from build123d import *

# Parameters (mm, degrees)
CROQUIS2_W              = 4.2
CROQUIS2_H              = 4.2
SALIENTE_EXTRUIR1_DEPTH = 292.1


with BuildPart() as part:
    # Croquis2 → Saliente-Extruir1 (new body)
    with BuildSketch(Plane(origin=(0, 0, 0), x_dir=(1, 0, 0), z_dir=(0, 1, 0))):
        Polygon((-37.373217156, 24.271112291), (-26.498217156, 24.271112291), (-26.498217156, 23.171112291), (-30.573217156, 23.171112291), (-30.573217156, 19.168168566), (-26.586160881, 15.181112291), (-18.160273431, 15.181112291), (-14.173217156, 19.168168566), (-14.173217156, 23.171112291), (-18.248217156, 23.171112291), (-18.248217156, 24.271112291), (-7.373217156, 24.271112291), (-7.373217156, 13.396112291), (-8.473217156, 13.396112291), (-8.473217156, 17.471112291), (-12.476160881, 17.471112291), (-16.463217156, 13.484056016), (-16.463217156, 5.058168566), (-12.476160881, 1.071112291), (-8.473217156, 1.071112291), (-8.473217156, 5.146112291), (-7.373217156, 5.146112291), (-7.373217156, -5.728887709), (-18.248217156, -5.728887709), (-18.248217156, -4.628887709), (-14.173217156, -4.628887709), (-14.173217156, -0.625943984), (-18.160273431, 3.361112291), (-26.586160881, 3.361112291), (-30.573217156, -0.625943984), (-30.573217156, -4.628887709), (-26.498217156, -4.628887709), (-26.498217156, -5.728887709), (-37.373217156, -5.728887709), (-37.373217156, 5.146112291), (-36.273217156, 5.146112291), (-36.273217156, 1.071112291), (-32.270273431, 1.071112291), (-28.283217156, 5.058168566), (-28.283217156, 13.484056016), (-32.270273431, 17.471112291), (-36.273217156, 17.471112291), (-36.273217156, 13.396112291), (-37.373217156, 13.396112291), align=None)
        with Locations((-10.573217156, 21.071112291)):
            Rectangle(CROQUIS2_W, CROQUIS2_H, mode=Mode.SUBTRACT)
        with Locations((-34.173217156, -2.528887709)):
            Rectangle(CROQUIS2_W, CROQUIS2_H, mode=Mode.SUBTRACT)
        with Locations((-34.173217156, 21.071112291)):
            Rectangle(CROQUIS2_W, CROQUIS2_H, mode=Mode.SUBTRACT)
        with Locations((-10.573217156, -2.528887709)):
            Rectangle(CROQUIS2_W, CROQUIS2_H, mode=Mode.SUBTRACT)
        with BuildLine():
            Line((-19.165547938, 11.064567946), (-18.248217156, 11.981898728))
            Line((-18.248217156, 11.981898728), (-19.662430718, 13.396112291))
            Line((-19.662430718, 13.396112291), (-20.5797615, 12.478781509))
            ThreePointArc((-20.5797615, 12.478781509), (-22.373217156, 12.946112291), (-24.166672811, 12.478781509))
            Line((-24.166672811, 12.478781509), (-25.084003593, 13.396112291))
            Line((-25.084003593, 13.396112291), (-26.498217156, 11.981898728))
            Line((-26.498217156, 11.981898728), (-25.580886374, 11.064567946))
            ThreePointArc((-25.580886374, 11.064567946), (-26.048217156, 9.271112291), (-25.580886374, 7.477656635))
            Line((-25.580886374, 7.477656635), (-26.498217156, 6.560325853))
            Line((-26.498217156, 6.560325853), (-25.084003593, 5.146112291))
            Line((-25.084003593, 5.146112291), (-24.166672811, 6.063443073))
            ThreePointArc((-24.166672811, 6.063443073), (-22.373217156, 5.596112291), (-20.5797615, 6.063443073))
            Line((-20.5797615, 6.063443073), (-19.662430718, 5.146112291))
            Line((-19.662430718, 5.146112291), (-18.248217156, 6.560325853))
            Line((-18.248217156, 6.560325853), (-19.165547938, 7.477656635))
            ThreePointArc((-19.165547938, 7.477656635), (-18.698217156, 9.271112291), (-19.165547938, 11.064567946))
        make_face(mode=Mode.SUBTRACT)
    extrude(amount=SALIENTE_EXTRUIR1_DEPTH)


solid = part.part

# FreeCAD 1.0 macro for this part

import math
import FreeCAD as App
import Part
import Sketcher

V = App.Vector


def add_polygon(sketch, points):
    """Adds a closed chain of lines whose ends are joined by coincident constraints."""
    first, n = sketch.GeometryCount, len(points)
    for a, b in zip(points, points[1:] + points[:1]):
        sketch.addGeometry(Part.LineSegment(App.Vector(*a, 0), App.Vector(*b, 0)), False)
    for i in range(n):
        sketch.addConstraint(Sketcher.Constraint("Coincident", first + i, 2, first + (i + 1) % n, 1))

doc = App.newDocument("Part")
body = doc.addObject("PartDesign::Body", "Body")

sketch1 = body.newObject("Sketcher::SketchObject", "Sketch")
sketch1.AttachmentSupport = (doc.getObject("XZ_Plane"), [""])
sketch1.MapMode = "FlatFace"
add_polygon(sketch1, [(-26.498217, -24.271112), (-37.373217, -24.271112), (-37.373217, -13.396112), (-36.273217, -13.396112), (-36.273217, -17.471112), (-32.270273, -17.471112), (-28.283217, -13.484056), (-28.283217, -5.058169), (-32.270273, -1.071112), (-36.273217, -1.071112), (-36.273217, -5.146112), (-37.373217, -5.146112), (-37.373217, 5.728888), (-26.498217, 5.728888), (-26.498217, 4.628888), (-30.573217, 4.628888), (-30.573217, 0.625944), (-26.586161, -3.361112), (-18.160273, -3.361112), (-14.173217, 0.625944), (-14.173217, 4.628888), (-18.248217, 4.628888), (-18.248217, 5.728888), (-7.373217, 5.728888), (-7.373217, -5.146112), (-8.473217, -5.146112), (-8.473217, -1.071112), (-12.476161, -1.071112), (-16.463217, -5.058169), (-16.463217, -13.484056), (-12.476161, -17.471112), (-8.473217, -17.471112), (-8.473217, -13.396112), (-7.373217, -13.396112), (-7.373217, -24.271112), (-18.248217, -24.271112), (-18.248217, -23.171112), (-14.173217, -23.171112), (-14.173217, -19.168169), (-18.160273, -15.181112), (-26.586161, -15.181112), (-30.573217, -19.168169), (-30.573217, -23.171112), (-26.498217, -23.171112)])
add_polygon(sketch1, [(-12.673217, 4.628888), (-12.673217, 0.428888), (-8.473217, 0.428888), (-8.473217, 4.628888)])
add_polygon(sketch1, [(-36.273217, 4.628888), (-36.273217, 0.428888), (-32.073217, 0.428888), (-32.073217, 4.628888)])
sketch1.addGeometry(Part.ArcOfCircle(Part.Circle(V(-22.373217, -9.271112, 0), V(0, 0, 1), 3.675), math.radians(-29.210206), math.radians(29.210206)), False)
sketch1.addGeometry(Part.LineSegment(V(-19.165548, -7.477657, 0), V(-18.248217, -6.560326, 0)), False)
sketch1.addGeometry(Part.LineSegment(V(-18.248217, -6.560326, 0), V(-19.662431, -5.146112, 0)), False)
sketch1.addGeometry(Part.LineSegment(V(-19.662431, -5.146112, 0), V(-20.579762, -6.063443, 0)), False)
sketch1.addGeometry(Part.ArcOfCircle(Part.Circle(V(-22.373217, -9.271112, 0), V(0, 0, 1), 3.675), math.radians(60.789794), math.radians(119.210206)), False)
sketch1.addGeometry(Part.LineSegment(V(-24.166673, -6.063443, 0), V(-25.084004, -5.146112, 0)), False)
sketch1.addGeometry(Part.LineSegment(V(-25.084004, -5.146112, 0), V(-26.498217, -6.560326, 0)), False)
sketch1.addGeometry(Part.LineSegment(V(-26.498217, -6.560326, 0), V(-25.580886, -7.477657, 0)), False)
sketch1.addGeometry(Part.ArcOfCircle(Part.Circle(V(-22.373217, -9.271112, 0), V(0, 0, 1), 3.675), math.radians(150.789794), math.radians(209.210206)), False)
sketch1.addGeometry(Part.LineSegment(V(-25.580886, -11.064568, 0), V(-26.498217, -11.981899, 0)), False)
sketch1.addGeometry(Part.LineSegment(V(-26.498217, -11.981899, 0), V(-25.084004, -13.396112, 0)), False)
sketch1.addGeometry(Part.LineSegment(V(-25.084004, -13.396112, 0), V(-24.166673, -12.478782, 0)), False)
sketch1.addGeometry(Part.ArcOfCircle(Part.Circle(V(-22.373217, -9.271112, 0), V(0, 0, 1), 3.675), math.radians(-119.210206), math.radians(-60.789794)), False)
sketch1.addGeometry(Part.LineSegment(V(-20.579762, -12.478782, 0), V(-19.662431, -13.396112, 0)), False)
sketch1.addGeometry(Part.LineSegment(V(-19.662431, -13.396112, 0), V(-18.248217, -11.981899, 0)), False)
sketch1.addGeometry(Part.LineSegment(V(-18.248217, -11.981899, 0), V(-19.165548, -11.064568, 0)), False)
add_polygon(sketch1, [(-12.673217, -18.971112), (-12.673217, -23.171112), (-8.473217, -23.171112), (-8.473217, -18.971112)])
add_polygon(sketch1, [(-36.273217, -18.971112), (-36.273217, -23.171112), (-32.073217, -23.171112), (-32.073217, -18.971112)])
sketch1.addConstraint([
    Sketcher.Constraint("Coincident", 52, 2, 53, 1),
    Sketcher.Constraint("Coincident", 53, 2, 54, 1),
    Sketcher.Constraint("Coincident", 54, 2, 55, 1),
    Sketcher.Constraint("Coincident", 55, 2, 56, 1),
    Sketcher.Constraint("Coincident", 56, 2, 57, 1),
    Sketcher.Constraint("Coincident", 57, 2, 58, 1),
    Sketcher.Constraint("Coincident", 58, 2, 59, 1),
    Sketcher.Constraint("Coincident", 59, 2, 60, 1),
    Sketcher.Constraint("Coincident", 60, 2, 61, 1),
    Sketcher.Constraint("Coincident", 61, 2, 62, 1),
    Sketcher.Constraint("Coincident", 62, 2, 63, 1),
    Sketcher.Constraint("Coincident", 63, 2, 64, 1),
    Sketcher.Constraint("Coincident", 64, 2, 65, 1),
    Sketcher.Constraint("Coincident", 65, 2, 66, 1),
    Sketcher.Constraint("Coincident", 66, 2, 67, 1),
    Sketcher.Constraint("Coincident", 67, 2, 52, 1),
    Sketcher.Constraint("Horizontal", 0),
    Sketcher.Constraint("Vertical", 1),
    Sketcher.Constraint("Horizontal", 2),
    Sketcher.Constraint("Vertical", 3),
    Sketcher.Constraint("Horizontal", 4),
    Sketcher.Constraint("Vertical", 6),
    Sketcher.Constraint("Horizontal", 8),
    Sketcher.Constraint("Vertical", 9),
    Sketcher.Constraint("Horizontal", 10),
    Sketcher.Constraint("Vertical", 11),
    Sketcher.Constraint("Horizontal", 12),
    Sketcher.Constraint("Vertical", 13),
    Sketcher.Constraint("Horizontal", 14),
    Sketcher.Constraint("Vertical", 15),
    Sketcher.Constraint("Horizontal", 17),
    Sketcher.Constraint("Vertical", 19),
    Sketcher.Constraint("Horizontal", 20),
    Sketcher.Constraint("Vertical", 21),
    Sketcher.Constraint("Horizontal", 22),
    Sketcher.Constraint("Vertical", 23),
    Sketcher.Constraint("Horizontal", 24),
    Sketcher.Constraint("Vertical", 25),
    Sketcher.Constraint("Horizontal", 26),
    Sketcher.Constraint("Vertical", 28),
    Sketcher.Constraint("Horizontal", 30),
    Sketcher.Constraint("Vertical", 31),
    Sketcher.Constraint("Horizontal", 32),
    Sketcher.Constraint("Vertical", 33),
    Sketcher.Constraint("Horizontal", 34),
    Sketcher.Constraint("Vertical", 35),
    Sketcher.Constraint("Horizontal", 36),
    Sketcher.Constraint("Vertical", 37),
    Sketcher.Constraint("Horizontal", 39),
    Sketcher.Constraint("Vertical", 41),
    Sketcher.Constraint("Horizontal", 42),
    Sketcher.Constraint("Vertical", 43),
    Sketcher.Constraint("Vertical", 44),
    Sketcher.Constraint("Horizontal", 45),
    Sketcher.Constraint("Vertical", 46),
    Sketcher.Constraint("Horizontal", 47),
    Sketcher.Constraint("Vertical", 48),
    Sketcher.Constraint("Horizontal", 49),
    Sketcher.Constraint("Vertical", 50),
    Sketcher.Constraint("Horizontal", 51),
    Sketcher.Constraint("Vertical", 68),
    Sketcher.Constraint("Horizontal", 69),
    Sketcher.Constraint("Vertical", 70),
    Sketcher.Constraint("Horizontal", 71),
    Sketcher.Constraint("Vertical", 72),
    Sketcher.Constraint("Horizontal", 73),
    Sketcher.Constraint("Vertical", 74),
    Sketcher.Constraint("Horizontal", 75),
    Sketcher.Constraint("Coincident", 56, 3, 52, 3),
    Sketcher.Constraint("Coincident", 60, 3, 52, 3),
    Sketcher.Constraint("Coincident", 64, 3, 52, 3),
    Sketcher.Constraint("Equal", 52, 56),
    Sketcher.Constraint("Equal", 56, 60),
    Sketcher.Constraint("Equal", 60, 64),
    Sketcher.Constraint("Perpendicular", 5, 7),
    Sketcher.Constraint("Parallel", 7, 16),
    Sketcher.Constraint("Perpendicular", 16, 18),
    Sketcher.Constraint("Parallel", 18, 27),
    Sketcher.Constraint("Perpendicular", 27, 29),
    Sketcher.Constraint("Parallel", 29, 38),
    Sketcher.Constraint("Perpendicular", 38, 40),
    Sketcher.Constraint("Parallel", 40, 53),
    Sketcher.Constraint("Perpendicular", 53, 54),
    Sketcher.Constraint("Perpendicular", 54, 55),
    Sketcher.Constraint("Perpendicular", 55, 57),
    Sketcher.Constraint("Perpendicular", 57, 58),
    Sketcher.Constraint("Perpendicular", 58, 59),
    Sketcher.Constraint("Perpendicular", 59, 61),
    Sketcher.Constraint("Perpendicular", 61, 62),
    Sketcher.Constraint("Perpendicular", 62, 63),
    Sketcher.Constraint("Perpendicular", 63, 65),
    Sketcher.Constraint("Perpendicular", 65, 66),
    Sketcher.Constraint("Perpendicular", 66, 67),
    Sketcher.Constraint("Horizontal", 15, 2, 18, 2),
    Sketcher.Constraint("Horizontal", 14, 2, 19, 2),
    Sketcher.Constraint("Horizontal", 12, 2, 21, 2),
    Sketcher.Constraint("Horizontal", 10, 2, 23, 2),
    Sketcher.Constraint("Horizontal", 8, 2, 25, 2),
    Sketcher.Constraint("Horizontal", 6, 2, 27, 2),
    Sketcher.Constraint("Horizontal", 5, 2, 28, 2),
    Sketcher.Constraint("Horizontal", 4, 2, 29, 2),
    Sketcher.Constraint("Horizontal", 2, 2, 31, 2),
    Sketcher.Constraint("Horizontal", 0, 2, 33, 2),
    Sketcher.Constraint("Horizontal", 37, 2, 40, 2),
    Sketcher.Constraint("Horizontal", 36, 2, 41, 2),
    Sketcher.Constraint("Horizontal", 20, 2, 46, 2),
    Sketcher.Constraint("Horizontal", 45, 2, 48, 2),
    Sketcher.Constraint("Horizontal", 47, 2, 50, 2),
    Sketcher.Constraint("Horizontal", 24, 2, 54, 2),
    Sketcher.Constraint("Horizontal", 55, 2, 56, 2),
    Sketcher.Constraint("Horizontal", 54, 2, 57, 2),
    Sketcher.Constraint("Horizontal", 53, 2, 58, 2),
    Sketcher.Constraint("Horizontal", 52, 2, 59, 2),
    Sketcher.Constraint("Horizontal", 32, 2, 62, 2),
    Sketcher.Constraint("Horizontal", 63, 2, 64, 2),
    Sketcher.Constraint("Horizontal", 62, 2, 65, 2),
    Sketcher.Constraint("Horizontal", 61, 2, 66, 2),
    Sketcher.Constraint("Horizontal", 42, 2, 68, 2),
    Sketcher.Constraint("Horizontal", 69, 2, 72, 2),
    Sketcher.Constraint("Horizontal", 71, 2, 74, 2),
    Sketcher.Constraint("Vertical", 4, 2, 7, 2),
    Sketcher.Constraint("Vertical", 3, 2, 8, 2),
    Sketcher.Constraint("Vertical", 1, 2, 10, 2),
    Sketcher.Constraint("Vertical", 25, 2, 30, 2),
    Sketcher.Constraint("Vertical", 23, 2, 32, 2),
    Sketcher.Constraint("Vertical", 21, 2, 34, 2),
    Sketcher.Constraint("Vertical", 19, 2, 36, 2),
    Sketcher.Constraint("Vertical", 17, 2, 38, 2),
    Sketcher.Constraint("Vertical", 16, 2, 39, 2),
    Sketcher.Constraint("Vertical", 13, 2, 42, 2),
    Sketcher.Constraint("Vertical", 31, 2, 45, 2),
    Sketcher.Constraint("Vertical", 9, 2, 48, 2),
    Sketcher.Constraint("Vertical", 35, 2, 53, 2),
    Sketcher.Constraint("Vertical", 43, 2, 58, 2),
    Sketcher.Constraint("Vertical", 59, 2, 60, 2),
    Sketcher.Constraint("Vertical", 58, 2, 61, 2),
    Sketcher.Constraint("Vertical", 57, 2, 62, 2),
    Sketcher.Constraint("Vertical", 47, 2, 68, 2),
    Sketcher.Constraint("Vertical", 46, 2, 69, 2),
    Sketcher.Constraint("Vertical", 51, 2, 72, 2),
    Sketcher.Constraint("Vertical", 50, 2, 73, 2),
    Sketcher.Constraint("Equal", 14, 20),
    Sketcher.Constraint("Equal", 12, 22),
    Sketcher.Constraint("Equal", 10, 24),
    Sketcher.Constraint("Equal", 8, 26),
    Sketcher.Constraint("Equal", 47, 49),
    Sketcher.Constraint("Equal", 34, 1),
    Sketcher.Constraint("Equal", 42, 3),
    Sketcher.Constraint("Equal", 39, 6),
    Sketcher.Constraint("Equal", 3, 9),
    Sketcher.Constraint("Equal", 1, 11),
    Sketcher.Constraint("Equal", 32, 13),
    Sketcher.Constraint("Equal", 30, 15),
    Sketcher.Constraint("Equal", 21, 35),
    Sketcher.Constraint("Equal", 19, 37),
    Sketcher.Constraint("Equal", 75, 44),
    Sketcher.Constraint("Equal", 50, 68),
    Sketcher.Constraint("Equal", 7, 16),
    Sketcher.Constraint("Distance", 54, 2.0),
    Sketcher.Constraint("DistanceX", 2, 1, 2, 2, 1.1),
    Sketcher.Constraint("DistanceX", 45, 1, 45, 2, 4.2),
    Sketcher.Constraint("Radius", 52, 3.675),
    Sketcher.Constraint("DistanceX", 0, 2, 0, 1, 10.875),
    Sketcher.Constraint("DistanceX", 14, 2, 14, 1, 4.075),
    Sketcher.Constraint("Distance", 53, 1.297302),
    Sketcher.Constraint("DistanceY", 61, 2, -1, 1, 11.981899),
    Sketcher.Constraint("Distance", 5, 5.638549),
    Sketcher.Constraint("DistanceX", 4, 1, 4, 2, 4.002944),
    Sketcher.Constraint("DistanceX", 16, 2, -1, 1, 26.586161),
])
pad1 = body.newObject("PartDesign::Pad", "Pad")
pad1.Profile = sketch1
pad1.Length = 292.1
pad1.Reversed = True

doc.recompute()
